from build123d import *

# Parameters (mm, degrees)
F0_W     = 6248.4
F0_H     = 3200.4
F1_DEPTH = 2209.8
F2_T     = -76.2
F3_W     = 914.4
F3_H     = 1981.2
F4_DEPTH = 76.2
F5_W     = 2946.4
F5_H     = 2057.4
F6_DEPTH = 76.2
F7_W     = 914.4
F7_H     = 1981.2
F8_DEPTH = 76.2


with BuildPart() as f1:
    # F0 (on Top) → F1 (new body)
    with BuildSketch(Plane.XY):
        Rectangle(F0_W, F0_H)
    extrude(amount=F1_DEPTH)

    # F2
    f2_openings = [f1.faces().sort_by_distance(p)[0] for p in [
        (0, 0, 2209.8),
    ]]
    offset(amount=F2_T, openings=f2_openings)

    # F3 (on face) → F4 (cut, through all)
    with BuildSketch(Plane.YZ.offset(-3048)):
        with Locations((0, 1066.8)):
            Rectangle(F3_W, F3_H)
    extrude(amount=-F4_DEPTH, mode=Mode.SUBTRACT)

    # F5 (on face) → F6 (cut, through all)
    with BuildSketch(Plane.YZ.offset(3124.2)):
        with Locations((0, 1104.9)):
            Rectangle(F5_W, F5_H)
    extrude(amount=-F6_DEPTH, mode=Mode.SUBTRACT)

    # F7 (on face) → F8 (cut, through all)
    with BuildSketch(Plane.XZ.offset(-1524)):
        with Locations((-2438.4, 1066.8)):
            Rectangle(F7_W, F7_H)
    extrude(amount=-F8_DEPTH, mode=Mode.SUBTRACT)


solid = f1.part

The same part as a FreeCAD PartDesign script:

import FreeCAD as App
import Part
import Sketcher
Q = App.Units.Quantity


def faces_at(feature, points):
    """Names of the faces that lie closest to the given points."""
    faces = feature.Shape.Faces
    near = lambda p: min(range(len(faces)), key=lambda i: faces[i].distToShape(Part.Vertex(*p))[0])
    return sorted({f"Face{near(p) + 1}" for p in points})

doc = App.newDocument("Part")
params = doc.addObject("Spreadsheet::Sheet", "Params")
for row, (alias, value) in enumerate([
    ("sketch1_width", "246 in"),
    ("sketch1_height", "126 in"),
    ("pad1_length", "87 in"),
    ("thickness_wall", "3 in"),
    ("sketch2_width", "36 in"),
    ("sketch2_height", "78 in"),
    ("sketch3_width", "116 in"),
    ("sketch3_height", "81 in"),
    ("pocket2_length", "3 in"),
    ("sketch4_width", "36 in"),
    ("sketch4_height", "78 in"),
], start=1):
    params.set(f"A{row}", alias)
    params.set(f"B{row}", "=" + value)
    params.setAlias(f"B{row}", alias)

body = doc.addObject("PartDesign::Body", "Body")

sketch1 = body.newObject("Sketcher::SketchObject", "Sketch")
sketch1.AttachmentSupport = (doc.getObject("XY_Plane"), [""])
sketch1.MapMode = "FlatFace"
sketch1.addGeometry(Part.LineSegment(App.Vector(-3124, 1600, 0), App.Vector(-3124, -1600, 0)), False)
sketch1.addGeometry(Part.LineSegment(App.Vector(-3124, -1600, 0), App.Vector(3124, -1600, 0)), False)
sketch1.addGeometry(Part.LineSegment(App.Vector(3124, -1600, 0), App.Vector(3124, 1600, 0)), False)
sketch1.addGeometry(Part.LineSegment(App.Vector(3124, 1600, 0), App.Vector(-3124, 1600, 0)), False)
sketch1.addConstraint(Sketcher.Constraint("Coincident", 0, 2, 1, 1))
sketch1.addConstraint(Sketcher.Constraint("Coincident", 1, 2, 2, 1))
sketch1.addConstraint(Sketcher.Constraint("Coincident", 2, 2, 3, 1))
sketch1.addConstraint(Sketcher.Constraint("Coincident", 3, 2, 0, 1))
sketch1.addConstraint(Sketcher.Constraint("Vertical", 0))
sketch1.addConstraint(Sketcher.Constraint("Horizontal", 1))
sketch1.addConstraint(Sketcher.Constraint("Vertical", 2))
sketch1.addConstraint(Sketcher.Constraint("Horizontal", 3))
sketch1.addConstraint(Sketcher.Constraint("Symmetric", 0, 2, 2, 2, -1, 1))
sketch1.addConstraint(Sketcher.Constraint("DistanceX", 1, 1, 1, 2, Q("246 in")))
sketch1.addConstraint(Sketcher.Constraint("DistanceY", 0, 2, 0, 1, Q("126 in")))
sketch1.setExpression("Constraints[9]", "Params.sketch1_width")
sketch1.setExpression("Constraints[10]", "Params.sketch1_height")
pad1 = body.newObject("PartDesign::Pad", "Pad")
pad1.Profile = sketch1
pad1.setExpression("Length", "Params.pad1_length")
doc.recompute()

thickness = body.newObject("PartDesign::Thickness", "Thickness")
thickness.Base = (pad1, faces_at(pad1, [(0, 0, 2209.8)]))
thickness.setExpression("Value", "Params.thickness_wall")
thickness.Reversed = True
thickness.Join = "Arc"

sketch2 = body.newObject("Sketcher::SketchObject", "Sketch001")
sketch2.AttachmentSupport = (doc.getObject("YZ_Plane"), [""])
sketch2.MapMode = "FlatFace"
sketch2.AttachmentOffset = App.Placement(App.Vector(0, 0, -120 * 25.4), App.Rotation())
sketch2.addGeometry(Part.LineSegment(App.Vector(-457, 2057, 0), App.Vector(-457, 76, 0)), False)
sketch2.addGeometry(Part.LineSegment(App.Vector(-457, 76, 0), App.Vector(457, 76, 0)), False)
sketch2.addGeometry(Part.LineSegment(App.Vector(457, 76, 0), App.Vector(457, 2057, 0)), False)
sketch2.addGeometry(Part.LineSegment(App.Vector(457, 2057, 0), App.Vector(-457, 2057, 0)), False)
sketch2.addConstraint(Sketcher.Constraint("Coincident", 0, 2, 1, 1))
sketch2.addConstraint(Sketcher.Constraint("Coincident", 1, 2, 2, 1))
sketch2.addConstraint(Sketcher.Constraint("Coincident", 2, 2, 3, 1))
sketch2.addConstraint(Sketcher.Constraint("Coincident", 3, 2, 0, 1))
sketch2.addConstraint(Sketcher.Constraint("Vertical", 0))
sketch2.addConstraint(Sketcher.Constraint("Horizontal", 1))
sketch2.addConstraint(Sketcher.Constraint("Vertical", 2))
sketch2.addConstraint(Sketcher.Constraint("Horizontal", 3))
sketch2.addConstraint(Sketcher.Constraint("DistanceX", 1, 1, 1, 2, Q("36 in")))
sketch2.addConstraint(Sketcher.Constraint("DistanceY", 0, 2, 0, 1, Q("78 in")))
sketch2.addConstraint(Sketcher.Constraint("DistanceX", 0, 2, -1, 1, Q("18 in")))
sketch2.addConstraint(Sketcher.Constraint("DistanceY", -1, 1, 0, 2, Q("3 in")))
sketch2.setExpression("Constraints[8]", "Params.sketch2_width")
sketch2.setExpression("Constraints[9]", "Params.sketch2_height")
pocket1 = body.newObject("PartDesign::Pocket", "Pocket")
pocket1.Profile = sketch2
pocket1.Type = "ThroughAll"

sketch3 = body.newObject("Sketcher::SketchObject", "Sketch002")
sketch3.AttachmentSupport = (doc.getObject("YZ_Plane"), [""])
sketch3.MapMode = "FlatFace"
sketch3.AttachmentOffset = App.Placement(App.Vector(0, 0, 123 * 25.4), App.Rotation())
sketch3.addGeometry(Part.LineSegment(App.Vector(-1473, 2134, 0), App.Vector(-1473, 76, 0)), False)
sketch3.addGeometry(Part.LineSegment(App.Vector(-1473, 76, 0), App.Vector(1473, 76, 0)), False)
sketch3.addGeometry(Part.LineSegment(App.Vector(1473, 76, 0), App.Vector(1473, 2134, 0)), False)
sketch3.addGeometry(Part.LineSegment(App.Vector(1473, 2134, 0), App.Vector(-1473, 2134, 0)), False)
sketch3.addConstraint(Sketcher.Constraint("Coincident", 0, 2, 1, 1))
sketch3.addConstraint(Sketcher.Constraint("Coincident", 1, 2, 2, 1))
sketch3.addConstraint(Sketcher.Constraint("Coincident", 2, 2, 3, 1))
sketch3.addConstraint(Sketcher.Constraint("Coincident", 3, 2, 0, 1))
sketch3.addConstraint(Sketcher.Constraint("Vertical", 0))
sketch3.addConstraint(Sketcher.Constraint("Horizontal", 1))
sketch3.addConstraint(Sketcher.Constraint("Vertical", 2))
sketch3.addConstraint(Sketcher.Constraint("Horizontal", 3))
sketch3.addConstraint(Sketcher.Constraint("DistanceX", 1, 1, 1, 2, Q("116 in")))
sketch3.addConstraint(Sketcher.Constraint("DistanceY", 0, 2, 0, 1, Q("81 in")))
sketch3.addConstraint(Sketcher.Constraint("DistanceX", 0, 2, -1, 1, Q("58 in")))
sketch3.addConstraint(Sketcher.Constraint("DistanceY", -1, 1, 0, 2, Q("3 in")))
sketch3.setExpression("Constraints[8]", "Params.sketch3_width")
sketch3.setExpression("Constraints[9]", "Params.sketch3_height")
pocket2 = body.newObject("PartDesign::Pocket", "Pocket001")
pocket2.Profile = sketch3
pocket2.setExpression("Length", "Params.pocket2_length")

sketch4 = body.newObject("Sketcher::SketchObject", "Sketch003")
sketch4.AttachmentSupport = (doc.getObject("XZ_Plane"), [""])
sketch4.MapMode = "FlatFace"
sketch4.AttachmentOffset = App.Placement(App.Vector(0, 0, -60 * 25.4), App.Rotation())
sketch4.addGeometry(Part.LineSegment(App.Vector(-2896, 2057, 0), App.Vector(-2896, 76, 0)), False)
sketch4.addGeometry(Part.LineSegment(App.Vector(-2896, 76, 0), App.Vector(-1981, 76, 0)), False)
sketch4.addGeometry(Part.LineSegment(App.Vector(-1981, 76, 0), App.Vector(-1981, 2057, 0)), False)
sketch4.addGeometry(Part.LineSegment(App.Vector(-1981, 2057, 0), App.Vector(-2896, 2057, 0)), False)
sketch4.addConstraint(Sketcher.Constraint("Coincident", 0, 2, 1, 1))
sketch4.addConstraint(Sketcher.Constraint("Coincident", 1, 2, 2, 1))
sketch4.addConstraint(Sketcher.Constraint("Coincident", 2, 2, 3, 1))
sketch4.addConstraint(Sketcher.Constraint("Coincident", 3, 2, 0, 1))
sketch4.addConstraint(Sketcher.Constraint("Vertical", 0))
sketch4.addConstraint(Sketcher.Constraint("Horizontal", 1))
sketch4.addConstraint(Sketcher.Constraint("Vertical", 2))
sketch4.addConstraint(Sketcher.Constraint("Horizontal", 3))
sketch4.addConstraint(Sketcher.Constraint("DistanceX", 1, 1, 1, 2, Q("36 in")))
sketch4.addConstraint(Sketcher.Constraint("DistanceY", 0, 2, 0, 1, Q("78 in")))
sketch4.addConstraint(Sketcher.Constraint("DistanceX", 0, 2, -1, 1, Q("114 in")))
sketch4.addConstraint(Sketcher.Constraint("DistanceY", -1, 1, 0, 2, Q("3 in")))
sketch4.setExpression("Constraints[8]", "Params.sketch4_width")
sketch4.setExpression("Constraints[9]", "Params.sketch4_height")
pocket3 = body.newObject("PartDesign::Pocket", "Pocket002")
pocket3.Profile = sketch4
pocket3.Type = "ThroughAll"

doc.recompute()
